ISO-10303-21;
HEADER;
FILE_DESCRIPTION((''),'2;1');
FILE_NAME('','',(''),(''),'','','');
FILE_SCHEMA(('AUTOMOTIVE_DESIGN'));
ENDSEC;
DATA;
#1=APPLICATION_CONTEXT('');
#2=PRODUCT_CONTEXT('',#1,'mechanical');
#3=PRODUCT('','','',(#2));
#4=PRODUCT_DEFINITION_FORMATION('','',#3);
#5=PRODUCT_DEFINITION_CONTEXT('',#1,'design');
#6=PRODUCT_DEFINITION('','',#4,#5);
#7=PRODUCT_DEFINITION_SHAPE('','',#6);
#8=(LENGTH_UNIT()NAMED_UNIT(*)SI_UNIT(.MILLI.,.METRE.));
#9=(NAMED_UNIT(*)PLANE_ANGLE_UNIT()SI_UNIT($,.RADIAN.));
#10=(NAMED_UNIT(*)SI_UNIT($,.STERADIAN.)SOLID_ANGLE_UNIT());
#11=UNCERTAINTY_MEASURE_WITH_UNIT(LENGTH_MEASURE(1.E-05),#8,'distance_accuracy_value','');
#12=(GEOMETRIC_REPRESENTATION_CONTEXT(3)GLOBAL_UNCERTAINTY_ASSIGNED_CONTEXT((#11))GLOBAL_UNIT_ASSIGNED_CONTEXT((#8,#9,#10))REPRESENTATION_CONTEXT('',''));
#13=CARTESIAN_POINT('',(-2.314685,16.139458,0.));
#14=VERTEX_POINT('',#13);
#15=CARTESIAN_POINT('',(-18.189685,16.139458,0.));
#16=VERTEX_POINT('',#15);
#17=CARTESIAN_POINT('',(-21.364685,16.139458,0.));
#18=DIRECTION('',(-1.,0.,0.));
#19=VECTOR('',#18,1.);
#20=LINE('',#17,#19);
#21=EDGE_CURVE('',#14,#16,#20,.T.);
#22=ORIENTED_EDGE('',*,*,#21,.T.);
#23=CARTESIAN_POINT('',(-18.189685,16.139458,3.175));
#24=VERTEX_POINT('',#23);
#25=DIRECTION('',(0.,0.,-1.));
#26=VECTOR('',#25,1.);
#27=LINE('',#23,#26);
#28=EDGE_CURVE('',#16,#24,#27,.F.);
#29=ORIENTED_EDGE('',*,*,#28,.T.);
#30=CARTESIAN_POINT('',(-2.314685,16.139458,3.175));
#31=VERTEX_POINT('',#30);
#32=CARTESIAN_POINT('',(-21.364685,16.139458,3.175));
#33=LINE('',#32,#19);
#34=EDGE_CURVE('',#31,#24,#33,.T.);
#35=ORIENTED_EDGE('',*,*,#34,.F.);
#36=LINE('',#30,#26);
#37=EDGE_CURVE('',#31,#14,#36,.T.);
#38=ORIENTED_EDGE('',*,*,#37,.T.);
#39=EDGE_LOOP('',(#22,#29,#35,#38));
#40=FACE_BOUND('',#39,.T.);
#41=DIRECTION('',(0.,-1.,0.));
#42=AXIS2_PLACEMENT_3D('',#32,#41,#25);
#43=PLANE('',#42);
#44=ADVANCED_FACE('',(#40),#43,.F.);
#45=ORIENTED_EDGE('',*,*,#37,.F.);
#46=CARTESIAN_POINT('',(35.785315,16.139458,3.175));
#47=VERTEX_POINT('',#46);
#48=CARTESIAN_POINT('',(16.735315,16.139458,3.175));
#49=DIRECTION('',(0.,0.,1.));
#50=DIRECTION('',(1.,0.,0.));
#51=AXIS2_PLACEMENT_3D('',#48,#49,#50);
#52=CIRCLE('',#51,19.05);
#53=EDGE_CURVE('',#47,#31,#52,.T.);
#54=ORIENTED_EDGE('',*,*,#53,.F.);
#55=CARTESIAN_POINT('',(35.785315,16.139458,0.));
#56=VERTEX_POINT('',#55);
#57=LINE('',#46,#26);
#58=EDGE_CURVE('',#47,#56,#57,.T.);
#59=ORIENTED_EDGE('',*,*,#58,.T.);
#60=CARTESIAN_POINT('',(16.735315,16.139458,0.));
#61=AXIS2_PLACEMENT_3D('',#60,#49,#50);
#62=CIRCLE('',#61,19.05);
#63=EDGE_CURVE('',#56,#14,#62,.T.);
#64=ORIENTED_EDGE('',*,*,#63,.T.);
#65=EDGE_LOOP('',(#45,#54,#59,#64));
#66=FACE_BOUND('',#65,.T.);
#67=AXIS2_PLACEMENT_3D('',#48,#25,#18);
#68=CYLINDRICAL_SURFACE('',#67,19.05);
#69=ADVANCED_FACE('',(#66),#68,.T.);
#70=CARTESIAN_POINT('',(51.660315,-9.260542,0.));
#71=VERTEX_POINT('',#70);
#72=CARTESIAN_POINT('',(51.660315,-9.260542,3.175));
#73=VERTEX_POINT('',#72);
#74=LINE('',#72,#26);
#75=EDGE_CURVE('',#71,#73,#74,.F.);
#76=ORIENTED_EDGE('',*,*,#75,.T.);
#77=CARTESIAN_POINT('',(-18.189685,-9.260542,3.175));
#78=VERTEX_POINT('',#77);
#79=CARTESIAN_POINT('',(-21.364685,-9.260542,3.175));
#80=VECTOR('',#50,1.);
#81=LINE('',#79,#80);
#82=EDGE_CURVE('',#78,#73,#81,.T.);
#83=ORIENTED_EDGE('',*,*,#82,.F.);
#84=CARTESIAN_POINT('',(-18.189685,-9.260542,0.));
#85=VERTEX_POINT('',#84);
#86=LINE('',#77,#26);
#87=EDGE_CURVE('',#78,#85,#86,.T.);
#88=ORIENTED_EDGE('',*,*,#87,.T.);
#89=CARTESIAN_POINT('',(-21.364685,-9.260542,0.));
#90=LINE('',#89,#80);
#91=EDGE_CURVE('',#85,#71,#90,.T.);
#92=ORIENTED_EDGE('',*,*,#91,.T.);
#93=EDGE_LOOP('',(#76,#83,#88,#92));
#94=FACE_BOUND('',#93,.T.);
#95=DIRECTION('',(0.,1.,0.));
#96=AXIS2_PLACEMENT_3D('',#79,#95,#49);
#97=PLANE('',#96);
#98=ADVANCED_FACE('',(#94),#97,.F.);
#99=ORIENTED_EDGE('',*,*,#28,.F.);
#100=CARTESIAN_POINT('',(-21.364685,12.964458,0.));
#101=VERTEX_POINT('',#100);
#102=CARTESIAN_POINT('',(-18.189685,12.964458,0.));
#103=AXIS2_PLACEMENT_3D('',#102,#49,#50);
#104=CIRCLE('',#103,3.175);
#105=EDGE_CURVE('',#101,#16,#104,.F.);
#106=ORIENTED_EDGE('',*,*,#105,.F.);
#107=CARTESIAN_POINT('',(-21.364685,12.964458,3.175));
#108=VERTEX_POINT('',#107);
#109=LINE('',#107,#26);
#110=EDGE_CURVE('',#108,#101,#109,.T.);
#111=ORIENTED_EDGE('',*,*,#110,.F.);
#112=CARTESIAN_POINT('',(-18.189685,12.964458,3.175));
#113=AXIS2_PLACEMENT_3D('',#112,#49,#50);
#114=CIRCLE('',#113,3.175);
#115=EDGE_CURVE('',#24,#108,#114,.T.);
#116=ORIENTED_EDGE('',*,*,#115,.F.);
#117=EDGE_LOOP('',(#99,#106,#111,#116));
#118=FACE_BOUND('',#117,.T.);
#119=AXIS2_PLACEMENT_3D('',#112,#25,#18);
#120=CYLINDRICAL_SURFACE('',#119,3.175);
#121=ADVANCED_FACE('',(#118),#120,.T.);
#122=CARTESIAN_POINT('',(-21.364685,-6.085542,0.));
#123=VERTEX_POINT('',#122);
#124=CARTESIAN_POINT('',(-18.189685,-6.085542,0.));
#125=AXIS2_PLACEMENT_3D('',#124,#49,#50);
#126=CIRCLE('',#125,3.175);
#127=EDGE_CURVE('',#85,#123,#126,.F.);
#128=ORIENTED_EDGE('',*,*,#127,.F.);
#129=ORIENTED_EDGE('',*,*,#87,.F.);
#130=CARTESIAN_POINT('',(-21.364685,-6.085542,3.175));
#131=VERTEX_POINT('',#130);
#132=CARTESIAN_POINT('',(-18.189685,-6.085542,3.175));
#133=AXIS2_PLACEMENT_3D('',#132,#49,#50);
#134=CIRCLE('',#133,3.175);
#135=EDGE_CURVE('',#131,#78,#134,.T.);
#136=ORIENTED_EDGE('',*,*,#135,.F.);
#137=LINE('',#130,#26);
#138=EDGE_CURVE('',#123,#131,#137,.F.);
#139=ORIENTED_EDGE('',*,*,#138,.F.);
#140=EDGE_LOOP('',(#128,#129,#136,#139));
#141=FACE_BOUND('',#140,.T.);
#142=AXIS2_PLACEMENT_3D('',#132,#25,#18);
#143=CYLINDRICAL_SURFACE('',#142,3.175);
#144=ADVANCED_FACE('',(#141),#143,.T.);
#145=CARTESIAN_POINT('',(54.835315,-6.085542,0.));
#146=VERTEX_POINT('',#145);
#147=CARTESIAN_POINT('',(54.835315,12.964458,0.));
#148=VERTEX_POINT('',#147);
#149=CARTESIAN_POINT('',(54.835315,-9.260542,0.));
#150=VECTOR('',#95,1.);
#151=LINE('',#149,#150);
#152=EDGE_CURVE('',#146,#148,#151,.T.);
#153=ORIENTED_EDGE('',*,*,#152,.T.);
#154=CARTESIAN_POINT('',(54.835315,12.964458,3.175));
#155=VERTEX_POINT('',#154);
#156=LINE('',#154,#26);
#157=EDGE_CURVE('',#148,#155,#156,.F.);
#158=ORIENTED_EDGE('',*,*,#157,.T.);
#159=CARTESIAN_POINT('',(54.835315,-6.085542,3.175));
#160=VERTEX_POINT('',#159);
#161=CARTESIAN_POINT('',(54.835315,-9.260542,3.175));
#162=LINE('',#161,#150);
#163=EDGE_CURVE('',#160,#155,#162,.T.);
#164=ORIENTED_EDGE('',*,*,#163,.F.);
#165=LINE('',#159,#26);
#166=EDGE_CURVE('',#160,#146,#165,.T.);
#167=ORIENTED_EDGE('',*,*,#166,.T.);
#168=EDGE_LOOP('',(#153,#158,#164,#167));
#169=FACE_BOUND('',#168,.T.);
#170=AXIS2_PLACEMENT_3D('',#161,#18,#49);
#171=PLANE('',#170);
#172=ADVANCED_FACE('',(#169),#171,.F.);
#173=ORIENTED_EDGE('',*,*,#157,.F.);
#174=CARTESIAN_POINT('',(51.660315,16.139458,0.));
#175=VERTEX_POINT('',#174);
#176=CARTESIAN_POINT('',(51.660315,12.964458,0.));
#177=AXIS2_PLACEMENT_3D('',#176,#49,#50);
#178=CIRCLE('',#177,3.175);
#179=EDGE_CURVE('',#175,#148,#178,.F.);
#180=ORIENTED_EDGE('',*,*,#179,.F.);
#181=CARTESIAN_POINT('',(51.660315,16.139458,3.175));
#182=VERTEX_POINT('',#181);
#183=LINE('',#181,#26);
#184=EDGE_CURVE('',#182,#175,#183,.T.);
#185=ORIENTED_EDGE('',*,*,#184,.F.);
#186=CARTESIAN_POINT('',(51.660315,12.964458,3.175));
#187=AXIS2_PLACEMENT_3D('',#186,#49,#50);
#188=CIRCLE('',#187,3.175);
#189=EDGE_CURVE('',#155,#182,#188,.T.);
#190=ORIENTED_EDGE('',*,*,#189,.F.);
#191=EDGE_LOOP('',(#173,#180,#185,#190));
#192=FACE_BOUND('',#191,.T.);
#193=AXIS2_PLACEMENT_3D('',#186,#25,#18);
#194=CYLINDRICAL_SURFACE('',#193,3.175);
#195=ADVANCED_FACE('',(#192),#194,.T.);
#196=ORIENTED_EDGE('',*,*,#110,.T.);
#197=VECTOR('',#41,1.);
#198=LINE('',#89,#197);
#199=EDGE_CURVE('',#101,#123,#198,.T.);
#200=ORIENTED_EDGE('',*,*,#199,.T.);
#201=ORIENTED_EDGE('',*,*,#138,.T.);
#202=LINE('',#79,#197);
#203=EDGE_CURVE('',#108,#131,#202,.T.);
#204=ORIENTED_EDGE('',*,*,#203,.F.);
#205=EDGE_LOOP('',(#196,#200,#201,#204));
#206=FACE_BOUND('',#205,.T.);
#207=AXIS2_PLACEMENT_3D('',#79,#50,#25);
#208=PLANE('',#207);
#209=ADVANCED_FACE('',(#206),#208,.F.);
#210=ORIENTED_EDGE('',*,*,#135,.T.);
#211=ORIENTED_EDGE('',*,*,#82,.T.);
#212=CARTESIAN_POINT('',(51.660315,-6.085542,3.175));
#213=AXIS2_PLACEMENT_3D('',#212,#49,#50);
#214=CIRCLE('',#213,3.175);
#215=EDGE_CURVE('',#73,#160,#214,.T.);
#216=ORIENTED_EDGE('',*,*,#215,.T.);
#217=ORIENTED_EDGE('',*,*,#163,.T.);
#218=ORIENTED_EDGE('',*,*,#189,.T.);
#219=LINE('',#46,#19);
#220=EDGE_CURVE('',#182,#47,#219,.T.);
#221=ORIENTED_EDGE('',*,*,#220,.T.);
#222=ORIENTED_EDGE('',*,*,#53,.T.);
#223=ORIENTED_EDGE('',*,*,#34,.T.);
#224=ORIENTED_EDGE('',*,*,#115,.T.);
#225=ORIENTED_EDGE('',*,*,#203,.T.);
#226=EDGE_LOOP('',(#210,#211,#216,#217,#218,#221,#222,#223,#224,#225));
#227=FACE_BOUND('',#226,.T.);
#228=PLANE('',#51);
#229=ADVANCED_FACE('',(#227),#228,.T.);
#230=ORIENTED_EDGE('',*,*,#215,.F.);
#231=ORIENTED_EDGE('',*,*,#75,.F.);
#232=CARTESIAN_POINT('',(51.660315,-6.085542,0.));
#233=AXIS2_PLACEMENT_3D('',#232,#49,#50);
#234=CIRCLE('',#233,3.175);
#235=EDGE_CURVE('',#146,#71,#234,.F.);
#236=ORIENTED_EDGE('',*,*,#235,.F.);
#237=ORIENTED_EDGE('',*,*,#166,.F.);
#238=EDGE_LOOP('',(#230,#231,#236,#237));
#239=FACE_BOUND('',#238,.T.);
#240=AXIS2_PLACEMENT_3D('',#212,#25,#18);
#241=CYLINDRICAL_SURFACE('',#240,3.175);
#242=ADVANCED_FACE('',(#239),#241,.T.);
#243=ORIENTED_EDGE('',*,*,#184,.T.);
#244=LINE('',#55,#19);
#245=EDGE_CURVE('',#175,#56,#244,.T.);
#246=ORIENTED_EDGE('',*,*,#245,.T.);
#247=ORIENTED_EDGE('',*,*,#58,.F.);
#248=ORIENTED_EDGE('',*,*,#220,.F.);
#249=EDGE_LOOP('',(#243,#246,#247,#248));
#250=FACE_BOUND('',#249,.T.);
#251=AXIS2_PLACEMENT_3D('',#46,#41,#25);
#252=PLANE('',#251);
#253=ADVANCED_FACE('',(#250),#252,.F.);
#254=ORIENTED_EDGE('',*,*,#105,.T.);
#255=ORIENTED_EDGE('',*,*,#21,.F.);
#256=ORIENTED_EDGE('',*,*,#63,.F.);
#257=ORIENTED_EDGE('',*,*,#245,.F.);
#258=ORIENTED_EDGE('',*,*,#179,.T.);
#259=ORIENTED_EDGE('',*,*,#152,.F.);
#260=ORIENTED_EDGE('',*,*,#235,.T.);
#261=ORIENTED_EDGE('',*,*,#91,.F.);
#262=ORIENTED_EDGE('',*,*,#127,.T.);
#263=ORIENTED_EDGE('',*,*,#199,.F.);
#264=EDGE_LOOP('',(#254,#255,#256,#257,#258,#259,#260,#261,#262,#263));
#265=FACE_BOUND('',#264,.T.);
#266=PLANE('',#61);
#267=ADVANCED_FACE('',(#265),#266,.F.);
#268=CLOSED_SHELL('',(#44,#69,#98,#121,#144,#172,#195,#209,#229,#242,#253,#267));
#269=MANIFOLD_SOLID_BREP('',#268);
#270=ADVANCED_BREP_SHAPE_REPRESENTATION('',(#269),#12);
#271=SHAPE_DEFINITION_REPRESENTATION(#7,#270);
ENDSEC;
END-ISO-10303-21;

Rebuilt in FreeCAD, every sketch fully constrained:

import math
import FreeCAD as App
import Part
import Sketcher
from FreeCAD import Vector
Q = App.Units.Quantity


def edges_at(feature, points):
    """Names of the edges that pass closest to the given points."""
    edges = feature.Shape.Edges
    near = lambda p: min(range(len(edges)), key=lambda i: edges[i].distToShape(Part.Vertex(*p))[0])
    return sorted({f"Edge{near(p) + 1}" for p in points})

doc = App.newDocument("Part")
body = doc.addObject("PartDesign::Body", "Body")

sketch1 = body.newObject("Sketcher::SketchObject", "Sketch")
sketch1.AttachmentSupport = (doc.getObject("XY_Plane"), [""])
sketch1.MapMode = "FlatFace"
sketch1.addGeometry(Part.LineSegment(Vector(55, 16, 0), Vector(36, 16, 0)), False)
sketch1.addGeometry(Part.ArcOfCircle(Part.Circle(Vector(17, 16, 0), Vector(0, 0, 1), 19), math.radians(0), math.radians(180)), False)
sketch1.addGeometry(Part.LineSegment(Vector(-2, 16, 0), Vector(-21, 16, 0)), False)
sketch1.addGeometry(Part.LineSegment(Vector(-21, 16, 0), Vector(-21, -9, 0)), False)
sketch1.addGeometry(Part.LineSegment(Vector(-21, -9, 0), Vector(55, -9, 0)), False)
sketch1.addGeometry(Part.LineSegment(Vector(55, -9, 0), Vector(55, 16, 0)), False)
sketch1.addConstraint(Sketcher.Constraint("Coincident", 0, 2, 1, 1))
sketch1.addConstraint(Sketcher.Constraint("Coincident", 1, 2, 2, 1))
sketch1.addConstraint(Sketcher.Constraint("Coincident", 2, 2, 3, 1))
sketch1.addConstraint(Sketcher.Constraint("Coincident", 3, 2, 4, 1))
sketch1.addConstraint(Sketcher.Constraint("Coincident", 4, 2, 5, 1))
sketch1.addConstraint(Sketcher.Constraint("Coincident", 5, 2, 0, 1))
sketch1.addConstraint(Sketcher.Constraint("Horizontal", 0))
sketch1.addConstraint(Sketcher.Constraint("Horizontal", 2))
sketch1.addConstraint(Sketcher.Constraint("Vertical", 3))
sketch1.addConstraint(Sketcher.Constraint("Horizontal", 4))
sketch1.addConstraint(Sketcher.Constraint("Vertical", 5))
sketch1.addConstraint(Sketcher.Constraint("Horizontal", 1, 3, 0, 2))
sketch1.addConstraint(Sketcher.Constraint("Horizontal", 0, 2, 1, 2))
sketch1.addConstraint(Sketcher.Constraint("Equal", 0, 2))
sketch1.addConstraint(Sketcher.Constraint("DistanceX", 4, 1, 4, 2, Q("3 in")))
sketch1.addConstraint(Sketcher.Constraint("DistanceY", 3, 2, 3, 1, Q("1 in")))
sketch1.addConstraint(Sketcher.Constraint("Radius", 1, Q("0.75 in")))
sketch1.addConstraint(Sketcher.Constraint("DistanceY", -1, 1, 1, 3, 16.139458))
sketch1.addConstraint(Sketcher.Constraint("DistanceX", -1, 1, 1, 3, 16.735315))
pad1 = body.newObject("PartDesign::Pad", "Pad")
pad1.Profile = sketch1
pad1.Length = Q("0.125 in")
doc.recompute()

fillet = body.newObject("PartDesign::Fillet", "Fillet")
fillet.Base = (pad1, edges_at(pad1, [
    (54.835, 16.139, 1.587),
    (54.835, -9.261, 1.587),
    (-21.365, -9.261, 1.587),
    (-21.365, 16.139, 1.587),
]))
fillet.Radius = Q("0.125 in")

doc.recompute()
